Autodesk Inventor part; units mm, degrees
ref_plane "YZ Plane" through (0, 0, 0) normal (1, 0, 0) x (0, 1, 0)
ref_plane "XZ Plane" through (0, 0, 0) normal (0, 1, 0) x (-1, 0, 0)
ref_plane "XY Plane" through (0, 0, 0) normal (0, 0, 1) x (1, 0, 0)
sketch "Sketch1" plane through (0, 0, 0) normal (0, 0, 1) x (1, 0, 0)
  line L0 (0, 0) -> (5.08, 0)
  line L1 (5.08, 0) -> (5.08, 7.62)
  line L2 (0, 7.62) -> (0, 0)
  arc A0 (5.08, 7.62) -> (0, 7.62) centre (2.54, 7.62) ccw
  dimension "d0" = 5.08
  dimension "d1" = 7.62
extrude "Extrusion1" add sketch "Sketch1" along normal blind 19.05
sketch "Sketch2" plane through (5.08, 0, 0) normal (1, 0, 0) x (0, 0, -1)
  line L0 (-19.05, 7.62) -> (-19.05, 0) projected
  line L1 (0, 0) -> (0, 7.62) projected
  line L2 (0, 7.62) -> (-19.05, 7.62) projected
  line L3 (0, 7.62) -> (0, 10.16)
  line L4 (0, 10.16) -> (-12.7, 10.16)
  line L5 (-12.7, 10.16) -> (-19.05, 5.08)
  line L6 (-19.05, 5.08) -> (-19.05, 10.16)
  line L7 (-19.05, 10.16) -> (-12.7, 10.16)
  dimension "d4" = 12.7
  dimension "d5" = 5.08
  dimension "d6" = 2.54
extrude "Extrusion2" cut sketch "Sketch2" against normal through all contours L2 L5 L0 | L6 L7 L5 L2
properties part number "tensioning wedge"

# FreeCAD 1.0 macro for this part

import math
import FreeCAD as App
import Part
import Sketcher
Q = App.Units.Quantity


def add_polygon(sketch, points):
    """Adds a closed chain of lines whose ends are joined by coincident constraints."""
    first, n = sketch.GeometryCount, len(points)
    for a, b in zip(points, points[1:] + points[:1]):
        sketch.addGeometry(Part.LineSegment(App.Vector(*a, 0), App.Vector(*b, 0)), False)
    for i in range(n):
        sketch.addConstraint(Sketcher.Constraint("Coincident", first + i, 2, first + (i + 1) % n, 1))

doc = App.newDocument("Part")
body = doc.addObject("PartDesign::Body", "Body")

sketch1 = body.newObject("Sketcher::SketchObject", "Sketch")
sketch1.AttachmentSupport = (doc.getObject("XY_Plane"), [""])
sketch1.MapMode = "FlatFace"
sketch1.addGeometry(Part.LineSegment(App.Vector(0, 7.6, 0), App.Vector(0, 0, 0)), False)
sketch1.addGeometry(Part.LineSegment(App.Vector(0, 0, 0), App.Vector(5.1, 0, 0)), False)
sketch1.addGeometry(Part.LineSegment(App.Vector(5.1, 0, 0), App.Vector(5.1, 7.6, 0)), False)
sketch1.addGeometry(Part.ArcOfCircle(Part.Circle(App.Vector(2.5, 7.6, 0), App.Vector(0, 0, 1), 2.5), math.radians(0), math.radians(180)), False)
sketch1.addConstraint(Sketcher.Constraint("Coincident", 0, 2, 1, 1))
sketch1.addConstraint(Sketcher.Constraint("Coincident", 1, 2, 2, 1))
sketch1.addConstraint(Sketcher.Constraint("Tangent", 2, 2, 3, 1))
sketch1.addConstraint(Sketcher.Constraint("Tangent", 3, 2, 0, 1))
sketch1.addConstraint(Sketcher.Constraint("Vertical", 0))
sketch1.addConstraint(Sketcher.Constraint("Horizontal", 1))
sketch1.addConstraint(Sketcher.Constraint("Vertical", 2))
sketch1.addConstraint(Sketcher.Constraint("Coincident", 0, 2, -1, 1))
sketch1.addConstraint(Sketcher.Constraint("Radius", 3, Q("0.1 in")))
sketch1.addConstraint(Sketcher.Constraint("DistanceY", 0, 2, 0, 1, Q("0.3 in")))
pad1 = body.newObject("PartDesign::Pad", "Pad")
pad1.Profile = sketch1
pad1.Length = Q("0.75 in")

sketch2 = body.newObject("Sketcher::SketchObject", "Sketch001")
sketch2.AttachmentSupport = (doc.getObject("YZ_Plane"), [""])
sketch2.MapMode = "FlatFace"
sketch2.AttachmentOffset = App.Placement(App.Vector(0, 0, 0.2 * 25.4), App.Rotation())
add_polygon(sketch2, [(5, 19), (10, 13), (10, 19)])
sketch2.addConstraint(Sketcher.Constraint("Vertical", 1))
sketch2.addConstraint(Sketcher.Constraint("Horizontal", 2))
sketch2.addConstraint(Sketcher.Constraint("DistanceX", 2, 2, 2, 1, Q("0.2 in")))
sketch2.addConstraint(Sketcher.Constraint("DistanceY", -1, 1, 0, 2, Q("0.5 in")))
sketch2.addConstraint(Sketcher.Constraint("DistanceX", -1, 1, 2, 2, Q("0.2 in")))
sketch2.addConstraint(Sketcher.Constraint("DistanceY", 1, 1, 1, 2, Q("0.25 in")))
pocket1 = body.newObject("PartDesign::Pocket", "Pocket")
pocket1.Profile = sketch2
pocket1.Type = "ThroughAll"

doc.recompute()
